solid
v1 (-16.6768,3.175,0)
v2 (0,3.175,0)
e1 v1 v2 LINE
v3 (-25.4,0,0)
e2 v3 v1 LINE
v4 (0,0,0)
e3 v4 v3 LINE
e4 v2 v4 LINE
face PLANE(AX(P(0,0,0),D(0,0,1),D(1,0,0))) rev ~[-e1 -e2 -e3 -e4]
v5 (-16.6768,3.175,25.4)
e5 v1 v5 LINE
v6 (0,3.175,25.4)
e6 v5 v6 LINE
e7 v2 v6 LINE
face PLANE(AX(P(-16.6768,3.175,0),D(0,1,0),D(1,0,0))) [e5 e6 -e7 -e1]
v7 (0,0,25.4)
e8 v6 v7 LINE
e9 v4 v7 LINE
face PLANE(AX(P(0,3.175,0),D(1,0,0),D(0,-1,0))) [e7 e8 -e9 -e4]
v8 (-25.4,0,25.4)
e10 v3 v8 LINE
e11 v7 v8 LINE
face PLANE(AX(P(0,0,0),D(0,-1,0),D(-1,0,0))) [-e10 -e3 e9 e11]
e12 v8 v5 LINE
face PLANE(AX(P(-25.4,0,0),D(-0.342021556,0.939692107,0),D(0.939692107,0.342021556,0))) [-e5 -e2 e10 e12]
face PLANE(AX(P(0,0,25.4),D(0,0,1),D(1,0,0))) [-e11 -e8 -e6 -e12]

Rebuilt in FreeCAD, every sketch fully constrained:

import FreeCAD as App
import Part
import Sketcher

V = App.Vector
Q = App.Units.Quantity

doc = App.newDocument("Part")
body = doc.addObject("PartDesign::Body", "Body")

# Sketch on XY plane
sketch1 = body.newObject("Sketcher::SketchObject", "Sketch")
sketch1.AttachmentSupport = (doc.getObject("XY_Plane"), [""])
sketch1.MapMode = "FlatFace"
sketch1.addGeometry([
    Part.LineSegment(V(-25.4, 0, 0), V(0, 0, 0)),
    Part.LineSegment(V(0, 0, 0), V(0, 3.2, 0)),
    Part.LineSegment(V(0, 3.2, 0), V(-16.7, 3.2, 0)),
    Part.LineSegment(V(-16.7, 3.2, 0), V(-25.4, 0, 0)),
], False)
sketch1.addConstraint([
    Sketcher.Constraint("Coincident", 0, 2, 1, 1),
    Sketcher.Constraint("Coincident", 1, 2, 2, 1),
    Sketcher.Constraint("Coincident", 2, 2, 3, 1),
    Sketcher.Constraint("Coincident", 3, 2, 0, 1),
    Sketcher.Constraint("Horizontal", 0),
    Sketcher.Constraint("Vertical", 1),
    Sketcher.Constraint("Horizontal", 2),
    Sketcher.Constraint("Coincident", 0, 2, -1, 1),
    Sketcher.Constraint("DistanceX", 0, 1, 0, 2, Q("1 in")),
    Sketcher.Constraint("DistanceY", 1, 1, 1, 2, Q("0.125 in")),
    Sketcher.Constraint("Angle", 3, Q("-160 deg")),
])
pad1 = body.newObject("PartDesign::Pad", "Pad")
pad1.Profile = sketch1
pad1.Length = Q("1 in")

doc.recompute()
